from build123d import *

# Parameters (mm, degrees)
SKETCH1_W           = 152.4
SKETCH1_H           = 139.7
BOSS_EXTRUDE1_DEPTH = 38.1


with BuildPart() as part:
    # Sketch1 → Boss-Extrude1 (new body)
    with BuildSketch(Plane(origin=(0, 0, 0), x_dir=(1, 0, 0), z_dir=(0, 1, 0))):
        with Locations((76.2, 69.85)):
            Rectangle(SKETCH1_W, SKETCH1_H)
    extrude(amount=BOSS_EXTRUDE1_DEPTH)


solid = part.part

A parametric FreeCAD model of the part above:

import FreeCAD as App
import Part
import Sketcher
from FreeCAD import Vector
Q = App.Units.Quantity

doc = App.newDocument("Part")
body = doc.addObject("PartDesign::Body", "Body")

# Sketch on XZ plane
sketch1 = doc.addObject("Sketcher::SketchObject", "Sketch")
body.addObject(sketch1)
sketch1.AttachmentSupport = (doc.XZ_Plane, [""])
sketch1.MapMode = "FlatFace"
sketch1.addGeometry(Part.LineSegment(Vector(0, -139.7, 0), Vector(0, 0, 0)), False)
sketch1.addGeometry(Part.LineSegment(Vector(0, 0, 0), Vector(152.4, 0, 0)), False)
sketch1.addGeometry(Part.LineSegment(Vector(152.4, 0, 0), Vector(152.4, -139.7, 0)), False)
sketch1.addGeometry(Part.LineSegment(Vector(152.4, -139.7, 0), Vector(0, -139.7, 0)), False)
sketch1.addConstraint(Sketcher.Constraint("Coincident", 0, 2, 1, 1))
sketch1.addConstraint(Sketcher.Constraint("Coincident", 1, 2, 2, 1))
sketch1.addConstraint(Sketcher.Constraint("Coincident", 2, 2, 3, 1))
sketch1.addConstraint(Sketcher.Constraint("Coincident", 3, 2, 0, 1))
sketch1.addConstraint(Sketcher.Constraint("Vertical", 0))
sketch1.addConstraint(Sketcher.Constraint("Horizontal", 1))
sketch1.addConstraint(Sketcher.Constraint("Vertical", 2))
sketch1.addConstraint(Sketcher.Constraint("Horizontal", 3))
sketch1.addConstraint(Sketcher.Constraint("Coincident", 0, 2, -1, 1))
sketch1.addConstraint(Sketcher.Constraint("DistanceX", 1, 1, 1, 2, Q("6 in")))
sketch1.addConstraint(Sketcher.Constraint("DistanceY", 0, 1, 0, 2, Q("5.5 in")))
pad1 = doc.addObject("PartDesign::Pad", "Pad")
body.addObject(pad1)
pad1.Profile = sketch1
pad1.Length = Q("1.5 in")
pad1.Reversed = True

doc.recompute()
